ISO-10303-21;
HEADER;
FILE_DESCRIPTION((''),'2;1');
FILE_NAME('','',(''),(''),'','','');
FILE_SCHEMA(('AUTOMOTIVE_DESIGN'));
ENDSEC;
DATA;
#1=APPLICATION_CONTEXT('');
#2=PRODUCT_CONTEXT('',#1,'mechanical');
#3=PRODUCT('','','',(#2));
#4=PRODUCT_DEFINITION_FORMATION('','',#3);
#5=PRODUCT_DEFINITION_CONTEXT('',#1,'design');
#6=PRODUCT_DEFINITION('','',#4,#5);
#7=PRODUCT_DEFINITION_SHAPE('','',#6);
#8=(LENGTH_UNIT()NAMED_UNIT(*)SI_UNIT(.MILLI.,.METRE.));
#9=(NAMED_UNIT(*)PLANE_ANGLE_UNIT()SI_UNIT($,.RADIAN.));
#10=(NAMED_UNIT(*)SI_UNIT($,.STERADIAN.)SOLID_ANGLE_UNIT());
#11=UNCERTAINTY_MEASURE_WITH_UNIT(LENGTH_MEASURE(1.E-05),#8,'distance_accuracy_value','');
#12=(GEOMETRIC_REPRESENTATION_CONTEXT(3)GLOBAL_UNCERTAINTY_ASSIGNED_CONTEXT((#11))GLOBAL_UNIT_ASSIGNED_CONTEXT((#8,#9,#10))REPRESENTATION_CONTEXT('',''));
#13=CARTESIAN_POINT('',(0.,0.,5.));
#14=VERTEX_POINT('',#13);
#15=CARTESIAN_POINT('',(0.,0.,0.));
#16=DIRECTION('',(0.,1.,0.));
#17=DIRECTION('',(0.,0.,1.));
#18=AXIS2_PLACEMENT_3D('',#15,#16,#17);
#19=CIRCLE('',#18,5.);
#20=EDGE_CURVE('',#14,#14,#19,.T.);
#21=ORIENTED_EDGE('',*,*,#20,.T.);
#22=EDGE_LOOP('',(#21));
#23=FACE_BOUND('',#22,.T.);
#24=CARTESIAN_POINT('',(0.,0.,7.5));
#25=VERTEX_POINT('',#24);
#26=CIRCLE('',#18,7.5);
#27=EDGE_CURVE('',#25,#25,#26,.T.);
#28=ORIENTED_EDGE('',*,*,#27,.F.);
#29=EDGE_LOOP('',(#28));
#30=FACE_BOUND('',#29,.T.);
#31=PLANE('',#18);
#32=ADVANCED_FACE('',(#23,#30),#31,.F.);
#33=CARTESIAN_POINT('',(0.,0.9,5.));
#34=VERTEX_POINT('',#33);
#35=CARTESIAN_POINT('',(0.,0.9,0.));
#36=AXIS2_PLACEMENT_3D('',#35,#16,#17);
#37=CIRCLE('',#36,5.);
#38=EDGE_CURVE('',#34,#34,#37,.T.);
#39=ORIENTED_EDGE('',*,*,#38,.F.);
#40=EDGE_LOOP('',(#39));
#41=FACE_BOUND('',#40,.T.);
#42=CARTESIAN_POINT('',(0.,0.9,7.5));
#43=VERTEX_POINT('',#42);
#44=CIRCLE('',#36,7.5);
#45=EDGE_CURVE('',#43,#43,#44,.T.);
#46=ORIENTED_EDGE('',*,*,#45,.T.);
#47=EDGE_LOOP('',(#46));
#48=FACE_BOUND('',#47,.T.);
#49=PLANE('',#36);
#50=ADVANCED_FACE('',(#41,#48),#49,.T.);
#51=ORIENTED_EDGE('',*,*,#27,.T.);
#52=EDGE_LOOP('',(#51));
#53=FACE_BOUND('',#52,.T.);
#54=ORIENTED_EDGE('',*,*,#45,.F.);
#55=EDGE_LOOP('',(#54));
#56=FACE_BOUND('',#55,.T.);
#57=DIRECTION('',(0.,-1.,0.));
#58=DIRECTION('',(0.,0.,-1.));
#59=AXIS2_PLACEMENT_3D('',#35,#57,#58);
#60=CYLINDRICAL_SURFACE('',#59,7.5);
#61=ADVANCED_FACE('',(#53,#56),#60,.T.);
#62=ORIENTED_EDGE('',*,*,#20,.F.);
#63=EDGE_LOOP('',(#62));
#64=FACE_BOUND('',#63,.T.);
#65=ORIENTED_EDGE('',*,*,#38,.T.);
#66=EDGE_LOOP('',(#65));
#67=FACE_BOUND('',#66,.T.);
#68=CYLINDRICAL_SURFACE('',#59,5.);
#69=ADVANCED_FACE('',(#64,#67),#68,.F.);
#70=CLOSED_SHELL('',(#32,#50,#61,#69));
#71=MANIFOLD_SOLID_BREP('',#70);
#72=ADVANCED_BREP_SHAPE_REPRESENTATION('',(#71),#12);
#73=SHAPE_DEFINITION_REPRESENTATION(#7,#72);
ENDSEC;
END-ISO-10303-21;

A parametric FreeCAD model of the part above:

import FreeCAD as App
import Part
import Sketcher

V = App.Vector
Q = App.Units.Quantity

doc = App.newDocument("Part")
body = doc.addObject("PartDesign::Body", "Body")

sketch1 = doc.addObject("Sketcher::SketchObject", "Sketch")
body.addObject(sketch1)
sketch1.AttachmentSupport = (doc.XZ_Plane, [""])
sketch1.MapMode = "FlatFace"
sketch1.addGeometry([
    Part.Circle(V(0, 0, 0), V(0, 0, 1), 8),
    Part.Circle(V(0, 0, 0), V(0, 0, 1), 5),
], False)
sketch1.addConstraint([
    Sketcher.Constraint("Coincident", 0, 3, -1, 1),
    Sketcher.Constraint("Coincident", 1, 3, -1, 1),
    Sketcher.Constraint("Diameter", 0, Q("15 mm")),
    Sketcher.Constraint("Diameter", 1, Q("10 mm")),
])
pad1 = doc.addObject("PartDesign::Pad", "Pad")
body.addObject(pad1)
pad1.Profile = sketch1
pad1.Length = 0.9
pad1.Reversed = True

doc.recompute()
